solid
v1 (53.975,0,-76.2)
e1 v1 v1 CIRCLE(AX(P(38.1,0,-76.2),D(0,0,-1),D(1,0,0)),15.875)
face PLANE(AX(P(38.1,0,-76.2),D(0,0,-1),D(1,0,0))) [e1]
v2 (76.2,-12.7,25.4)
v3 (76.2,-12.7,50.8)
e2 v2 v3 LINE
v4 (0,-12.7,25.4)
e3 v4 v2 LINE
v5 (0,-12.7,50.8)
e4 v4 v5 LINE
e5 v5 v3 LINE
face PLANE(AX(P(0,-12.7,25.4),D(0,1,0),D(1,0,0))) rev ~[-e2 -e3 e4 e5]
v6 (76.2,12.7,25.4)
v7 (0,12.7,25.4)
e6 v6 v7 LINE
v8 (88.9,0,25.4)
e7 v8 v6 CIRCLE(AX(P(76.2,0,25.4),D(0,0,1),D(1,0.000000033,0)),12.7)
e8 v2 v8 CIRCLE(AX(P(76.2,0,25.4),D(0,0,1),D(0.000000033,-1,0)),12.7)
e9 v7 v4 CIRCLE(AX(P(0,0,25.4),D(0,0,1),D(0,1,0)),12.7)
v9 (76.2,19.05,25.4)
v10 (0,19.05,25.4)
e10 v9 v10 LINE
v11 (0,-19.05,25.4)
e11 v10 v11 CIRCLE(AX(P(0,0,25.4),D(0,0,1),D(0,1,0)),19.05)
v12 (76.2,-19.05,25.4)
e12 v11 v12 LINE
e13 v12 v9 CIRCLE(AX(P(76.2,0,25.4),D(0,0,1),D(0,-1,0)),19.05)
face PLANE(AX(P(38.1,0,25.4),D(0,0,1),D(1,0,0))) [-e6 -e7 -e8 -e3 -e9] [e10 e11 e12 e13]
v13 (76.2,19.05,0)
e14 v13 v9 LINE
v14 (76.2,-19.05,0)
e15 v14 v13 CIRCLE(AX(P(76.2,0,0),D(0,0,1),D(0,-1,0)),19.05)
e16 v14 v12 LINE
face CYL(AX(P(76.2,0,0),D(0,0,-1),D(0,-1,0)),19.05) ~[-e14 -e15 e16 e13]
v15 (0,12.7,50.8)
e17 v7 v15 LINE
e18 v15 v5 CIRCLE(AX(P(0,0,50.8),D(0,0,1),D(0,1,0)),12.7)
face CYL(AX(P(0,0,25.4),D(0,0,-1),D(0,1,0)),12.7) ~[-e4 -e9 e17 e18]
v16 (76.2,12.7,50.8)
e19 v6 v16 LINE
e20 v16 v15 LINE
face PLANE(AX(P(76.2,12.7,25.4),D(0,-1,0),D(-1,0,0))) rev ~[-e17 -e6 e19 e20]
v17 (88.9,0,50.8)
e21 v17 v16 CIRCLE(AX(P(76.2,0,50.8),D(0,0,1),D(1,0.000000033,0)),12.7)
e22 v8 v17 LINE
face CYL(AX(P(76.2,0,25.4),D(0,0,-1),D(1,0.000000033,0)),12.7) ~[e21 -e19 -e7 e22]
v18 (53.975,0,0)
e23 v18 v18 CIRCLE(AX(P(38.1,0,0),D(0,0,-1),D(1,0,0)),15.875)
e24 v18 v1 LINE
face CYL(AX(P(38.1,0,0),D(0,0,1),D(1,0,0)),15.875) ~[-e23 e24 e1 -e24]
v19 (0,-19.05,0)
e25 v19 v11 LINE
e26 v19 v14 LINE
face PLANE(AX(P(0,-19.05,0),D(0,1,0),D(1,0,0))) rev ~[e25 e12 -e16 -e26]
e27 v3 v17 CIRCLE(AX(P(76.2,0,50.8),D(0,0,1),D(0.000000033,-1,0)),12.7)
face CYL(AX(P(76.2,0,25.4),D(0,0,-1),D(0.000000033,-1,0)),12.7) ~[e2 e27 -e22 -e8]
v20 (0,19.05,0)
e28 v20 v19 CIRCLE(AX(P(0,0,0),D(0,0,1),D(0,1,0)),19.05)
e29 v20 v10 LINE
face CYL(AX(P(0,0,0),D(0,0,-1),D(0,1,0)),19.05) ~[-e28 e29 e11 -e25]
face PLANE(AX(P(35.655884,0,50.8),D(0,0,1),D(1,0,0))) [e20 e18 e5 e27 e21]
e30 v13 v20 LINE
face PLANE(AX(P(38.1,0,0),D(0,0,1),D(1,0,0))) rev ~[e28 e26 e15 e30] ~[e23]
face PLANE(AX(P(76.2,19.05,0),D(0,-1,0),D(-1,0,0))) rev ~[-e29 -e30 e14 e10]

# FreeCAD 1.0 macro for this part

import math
import FreeCAD as App
import Part
import Sketcher
from FreeCAD import Vector
Q = App.Units.Quantity

doc = App.newDocument("Part")
params = doc.addObject("Spreadsheet::Sheet", "Params")
for row, (alias, value) in enumerate([
    ("sketch1_width", "3 in"),
    ("sketch1_radius", "0.75 in"),
    ("pad1_length", "1 in"),
    ("sketch2_radius", "0.5 in"),
    ("sketch2_width", "3 in"),
    ("pad2_length", "1 in"),
    ("sketch3_diameter", "1.25 in"),
    ("pad3_length", "3 in"),
], start=1):
    params.set(f"A{row}", alias)
    params.set(f"B{row}", "=" + value)
    params.setAlias(f"B{row}", alias)

body = doc.addObject("PartDesign::Body", "Body")

# Sketch on XY plane
sketch1 = body.newObject("Sketcher::SketchObject", "Sketch")
sketch1.AttachmentSupport = (doc.getObject("XY_Plane"), [""])
sketch1.MapMode = "FlatFace"
sketch1.addGeometry(Part.LineSegment(Vector(76, 19, 0), Vector(0, 19, 0)), False)
sketch1.addGeometry(Part.ArcOfCircle(Part.Circle(Vector(0, 0, 0), Vector(0, 0, 1), 19), math.radians(90), math.radians(270)), False)
sketch1.addGeometry(Part.LineSegment(Vector(0, -19, 0), Vector(76, -19, 0)), False)
sketch1.addGeometry(Part.ArcOfCircle(Part.Circle(Vector(76, 0, 0), Vector(0, 0, 1), 19), math.radians(-90), math.radians(90)), False)
sketch1.addConstraint(Sketcher.Constraint("Tangent", 0, 2, 1, 1))
sketch1.addConstraint(Sketcher.Constraint("Tangent", 1, 2, 2, 1))
sketch1.addConstraint(Sketcher.Constraint("Tangent", 2, 2, 3, 1))
sketch1.addConstraint(Sketcher.Constraint("Tangent", 3, 2, 0, 1))
sketch1.addConstraint(Sketcher.Constraint("Horizontal", 0))
sketch1.addConstraint(Sketcher.Constraint("Horizontal", 2))
sketch1.addConstraint(Sketcher.Constraint("Coincident", 1, 3, -1, 1))
sketch1.addConstraint(Sketcher.Constraint("DistanceX", 0, 2, 0, 1, Q("3 in")))
sketch1.addConstraint(Sketcher.Constraint("Radius", 1, Q("0.75 in")))
sketch1.setExpression("Constraints[7]", "Params.sketch1_width")
sketch1.setExpression("Constraints[8]", "Params.sketch1_radius")
pad1 = body.newObject("PartDesign::Pad", "Pad")
pad1.Profile = sketch1
pad1.setExpression("Length", "Params.pad1_length")

# Sketch on XY plane
sketch2 = body.newObject("Sketcher::SketchObject", "Sketch001")
sketch2.AttachmentSupport = (doc.getObject("XY_Plane"), [""])
sketch2.MapMode = "FlatFace"
sketch2.AttachmentOffset = App.Placement(Vector(0, 0, 1 * 25.4), App.Rotation())
sketch2.addGeometry(Part.LineSegment(Vector(76, 13, 0), Vector(0, 13, 0)), False)
sketch2.addGeometry(Part.ArcOfCircle(Part.Circle(Vector(0, 0, 0), Vector(0, 0, 1), 13), math.radians(90), math.radians(270)), False)
sketch2.addGeometry(Part.LineSegment(Vector(0, -13, 0), Vector(76, -13, 0)), False)
sketch2.addGeometry(Part.ArcOfCircle(Part.Circle(Vector(76, 0, 0), Vector(0, 0, 1), 13), math.radians(-90), math.radians(0)), False)
sketch2.addGeometry(Part.ArcOfCircle(Part.Circle(Vector(76, 0, 0), Vector(0, 0, 1), 13), math.radians(0), math.radians(90)), False)
sketch2.addConstraint(Sketcher.Constraint("Tangent", 0, 2, 1, 1))
sketch2.addConstraint(Sketcher.Constraint("Tangent", 1, 2, 2, 1))
sketch2.addConstraint(Sketcher.Constraint("Tangent", 2, 2, 3, 1))
sketch2.addConstraint(Sketcher.Constraint("Tangent", 3, 2, 4, 1))
sketch2.addConstraint(Sketcher.Constraint("Tangent", 4, 2, 0, 1))
sketch2.addConstraint(Sketcher.Constraint("Horizontal", 0))
sketch2.addConstraint(Sketcher.Constraint("Horizontal", 2))
sketch2.addConstraint(Sketcher.Constraint("Coincident", 1, 3, -1, 1))
sketch2.addConstraint(Sketcher.Constraint("Equal", 1, 3))
sketch2.addConstraint(Sketcher.Constraint("PointOnObject", 3, 2, -1))
sketch2.addConstraint(Sketcher.Constraint("Radius", 1, Q("0.5 in")))
sketch2.addConstraint(Sketcher.Constraint("DistanceX", 0, 2, 0, 1, Q("3 in")))
sketch2.setExpression("Constraints[10]", "Params.sketch2_radius")
sketch2.setExpression("Constraints[11]", "Params.sketch2_width")
pad2 = body.newObject("PartDesign::Pad", "Pad001")
pad2.Profile = sketch2
pad2.setExpression("Length", "Params.pad2_length")

# Sketch on XY plane
sketch3 = body.newObject("Sketcher::SketchObject", "Sketch002")
sketch3.AttachmentSupport = (doc.getObject("XY_Plane"), [""])
sketch3.MapMode = "FlatFace"
sketch3.addGeometry(Part.Circle(Vector(38, 0, 0), Vector(0, 0, 1), 16), False)
sketch3.addConstraint(Sketcher.Constraint("PointOnObject", 0, 3, -1))
sketch3.addConstraint(Sketcher.Constraint("Diameter", 0, Q("1.25 in")))
sketch3.addConstraint(Sketcher.Constraint("DistanceX", -1, 1, 0, 3, Q("1.5 in")))
sketch3.setExpression("Constraints[1]", "Params.sketch3_diameter")
pad3 = body.newObject("PartDesign::Pad", "Pad002")
pad3.Profile = sketch3
pad3.setExpression("Length", "Params.pad3_length")
pad3.Reversed = True

doc.recompute()
